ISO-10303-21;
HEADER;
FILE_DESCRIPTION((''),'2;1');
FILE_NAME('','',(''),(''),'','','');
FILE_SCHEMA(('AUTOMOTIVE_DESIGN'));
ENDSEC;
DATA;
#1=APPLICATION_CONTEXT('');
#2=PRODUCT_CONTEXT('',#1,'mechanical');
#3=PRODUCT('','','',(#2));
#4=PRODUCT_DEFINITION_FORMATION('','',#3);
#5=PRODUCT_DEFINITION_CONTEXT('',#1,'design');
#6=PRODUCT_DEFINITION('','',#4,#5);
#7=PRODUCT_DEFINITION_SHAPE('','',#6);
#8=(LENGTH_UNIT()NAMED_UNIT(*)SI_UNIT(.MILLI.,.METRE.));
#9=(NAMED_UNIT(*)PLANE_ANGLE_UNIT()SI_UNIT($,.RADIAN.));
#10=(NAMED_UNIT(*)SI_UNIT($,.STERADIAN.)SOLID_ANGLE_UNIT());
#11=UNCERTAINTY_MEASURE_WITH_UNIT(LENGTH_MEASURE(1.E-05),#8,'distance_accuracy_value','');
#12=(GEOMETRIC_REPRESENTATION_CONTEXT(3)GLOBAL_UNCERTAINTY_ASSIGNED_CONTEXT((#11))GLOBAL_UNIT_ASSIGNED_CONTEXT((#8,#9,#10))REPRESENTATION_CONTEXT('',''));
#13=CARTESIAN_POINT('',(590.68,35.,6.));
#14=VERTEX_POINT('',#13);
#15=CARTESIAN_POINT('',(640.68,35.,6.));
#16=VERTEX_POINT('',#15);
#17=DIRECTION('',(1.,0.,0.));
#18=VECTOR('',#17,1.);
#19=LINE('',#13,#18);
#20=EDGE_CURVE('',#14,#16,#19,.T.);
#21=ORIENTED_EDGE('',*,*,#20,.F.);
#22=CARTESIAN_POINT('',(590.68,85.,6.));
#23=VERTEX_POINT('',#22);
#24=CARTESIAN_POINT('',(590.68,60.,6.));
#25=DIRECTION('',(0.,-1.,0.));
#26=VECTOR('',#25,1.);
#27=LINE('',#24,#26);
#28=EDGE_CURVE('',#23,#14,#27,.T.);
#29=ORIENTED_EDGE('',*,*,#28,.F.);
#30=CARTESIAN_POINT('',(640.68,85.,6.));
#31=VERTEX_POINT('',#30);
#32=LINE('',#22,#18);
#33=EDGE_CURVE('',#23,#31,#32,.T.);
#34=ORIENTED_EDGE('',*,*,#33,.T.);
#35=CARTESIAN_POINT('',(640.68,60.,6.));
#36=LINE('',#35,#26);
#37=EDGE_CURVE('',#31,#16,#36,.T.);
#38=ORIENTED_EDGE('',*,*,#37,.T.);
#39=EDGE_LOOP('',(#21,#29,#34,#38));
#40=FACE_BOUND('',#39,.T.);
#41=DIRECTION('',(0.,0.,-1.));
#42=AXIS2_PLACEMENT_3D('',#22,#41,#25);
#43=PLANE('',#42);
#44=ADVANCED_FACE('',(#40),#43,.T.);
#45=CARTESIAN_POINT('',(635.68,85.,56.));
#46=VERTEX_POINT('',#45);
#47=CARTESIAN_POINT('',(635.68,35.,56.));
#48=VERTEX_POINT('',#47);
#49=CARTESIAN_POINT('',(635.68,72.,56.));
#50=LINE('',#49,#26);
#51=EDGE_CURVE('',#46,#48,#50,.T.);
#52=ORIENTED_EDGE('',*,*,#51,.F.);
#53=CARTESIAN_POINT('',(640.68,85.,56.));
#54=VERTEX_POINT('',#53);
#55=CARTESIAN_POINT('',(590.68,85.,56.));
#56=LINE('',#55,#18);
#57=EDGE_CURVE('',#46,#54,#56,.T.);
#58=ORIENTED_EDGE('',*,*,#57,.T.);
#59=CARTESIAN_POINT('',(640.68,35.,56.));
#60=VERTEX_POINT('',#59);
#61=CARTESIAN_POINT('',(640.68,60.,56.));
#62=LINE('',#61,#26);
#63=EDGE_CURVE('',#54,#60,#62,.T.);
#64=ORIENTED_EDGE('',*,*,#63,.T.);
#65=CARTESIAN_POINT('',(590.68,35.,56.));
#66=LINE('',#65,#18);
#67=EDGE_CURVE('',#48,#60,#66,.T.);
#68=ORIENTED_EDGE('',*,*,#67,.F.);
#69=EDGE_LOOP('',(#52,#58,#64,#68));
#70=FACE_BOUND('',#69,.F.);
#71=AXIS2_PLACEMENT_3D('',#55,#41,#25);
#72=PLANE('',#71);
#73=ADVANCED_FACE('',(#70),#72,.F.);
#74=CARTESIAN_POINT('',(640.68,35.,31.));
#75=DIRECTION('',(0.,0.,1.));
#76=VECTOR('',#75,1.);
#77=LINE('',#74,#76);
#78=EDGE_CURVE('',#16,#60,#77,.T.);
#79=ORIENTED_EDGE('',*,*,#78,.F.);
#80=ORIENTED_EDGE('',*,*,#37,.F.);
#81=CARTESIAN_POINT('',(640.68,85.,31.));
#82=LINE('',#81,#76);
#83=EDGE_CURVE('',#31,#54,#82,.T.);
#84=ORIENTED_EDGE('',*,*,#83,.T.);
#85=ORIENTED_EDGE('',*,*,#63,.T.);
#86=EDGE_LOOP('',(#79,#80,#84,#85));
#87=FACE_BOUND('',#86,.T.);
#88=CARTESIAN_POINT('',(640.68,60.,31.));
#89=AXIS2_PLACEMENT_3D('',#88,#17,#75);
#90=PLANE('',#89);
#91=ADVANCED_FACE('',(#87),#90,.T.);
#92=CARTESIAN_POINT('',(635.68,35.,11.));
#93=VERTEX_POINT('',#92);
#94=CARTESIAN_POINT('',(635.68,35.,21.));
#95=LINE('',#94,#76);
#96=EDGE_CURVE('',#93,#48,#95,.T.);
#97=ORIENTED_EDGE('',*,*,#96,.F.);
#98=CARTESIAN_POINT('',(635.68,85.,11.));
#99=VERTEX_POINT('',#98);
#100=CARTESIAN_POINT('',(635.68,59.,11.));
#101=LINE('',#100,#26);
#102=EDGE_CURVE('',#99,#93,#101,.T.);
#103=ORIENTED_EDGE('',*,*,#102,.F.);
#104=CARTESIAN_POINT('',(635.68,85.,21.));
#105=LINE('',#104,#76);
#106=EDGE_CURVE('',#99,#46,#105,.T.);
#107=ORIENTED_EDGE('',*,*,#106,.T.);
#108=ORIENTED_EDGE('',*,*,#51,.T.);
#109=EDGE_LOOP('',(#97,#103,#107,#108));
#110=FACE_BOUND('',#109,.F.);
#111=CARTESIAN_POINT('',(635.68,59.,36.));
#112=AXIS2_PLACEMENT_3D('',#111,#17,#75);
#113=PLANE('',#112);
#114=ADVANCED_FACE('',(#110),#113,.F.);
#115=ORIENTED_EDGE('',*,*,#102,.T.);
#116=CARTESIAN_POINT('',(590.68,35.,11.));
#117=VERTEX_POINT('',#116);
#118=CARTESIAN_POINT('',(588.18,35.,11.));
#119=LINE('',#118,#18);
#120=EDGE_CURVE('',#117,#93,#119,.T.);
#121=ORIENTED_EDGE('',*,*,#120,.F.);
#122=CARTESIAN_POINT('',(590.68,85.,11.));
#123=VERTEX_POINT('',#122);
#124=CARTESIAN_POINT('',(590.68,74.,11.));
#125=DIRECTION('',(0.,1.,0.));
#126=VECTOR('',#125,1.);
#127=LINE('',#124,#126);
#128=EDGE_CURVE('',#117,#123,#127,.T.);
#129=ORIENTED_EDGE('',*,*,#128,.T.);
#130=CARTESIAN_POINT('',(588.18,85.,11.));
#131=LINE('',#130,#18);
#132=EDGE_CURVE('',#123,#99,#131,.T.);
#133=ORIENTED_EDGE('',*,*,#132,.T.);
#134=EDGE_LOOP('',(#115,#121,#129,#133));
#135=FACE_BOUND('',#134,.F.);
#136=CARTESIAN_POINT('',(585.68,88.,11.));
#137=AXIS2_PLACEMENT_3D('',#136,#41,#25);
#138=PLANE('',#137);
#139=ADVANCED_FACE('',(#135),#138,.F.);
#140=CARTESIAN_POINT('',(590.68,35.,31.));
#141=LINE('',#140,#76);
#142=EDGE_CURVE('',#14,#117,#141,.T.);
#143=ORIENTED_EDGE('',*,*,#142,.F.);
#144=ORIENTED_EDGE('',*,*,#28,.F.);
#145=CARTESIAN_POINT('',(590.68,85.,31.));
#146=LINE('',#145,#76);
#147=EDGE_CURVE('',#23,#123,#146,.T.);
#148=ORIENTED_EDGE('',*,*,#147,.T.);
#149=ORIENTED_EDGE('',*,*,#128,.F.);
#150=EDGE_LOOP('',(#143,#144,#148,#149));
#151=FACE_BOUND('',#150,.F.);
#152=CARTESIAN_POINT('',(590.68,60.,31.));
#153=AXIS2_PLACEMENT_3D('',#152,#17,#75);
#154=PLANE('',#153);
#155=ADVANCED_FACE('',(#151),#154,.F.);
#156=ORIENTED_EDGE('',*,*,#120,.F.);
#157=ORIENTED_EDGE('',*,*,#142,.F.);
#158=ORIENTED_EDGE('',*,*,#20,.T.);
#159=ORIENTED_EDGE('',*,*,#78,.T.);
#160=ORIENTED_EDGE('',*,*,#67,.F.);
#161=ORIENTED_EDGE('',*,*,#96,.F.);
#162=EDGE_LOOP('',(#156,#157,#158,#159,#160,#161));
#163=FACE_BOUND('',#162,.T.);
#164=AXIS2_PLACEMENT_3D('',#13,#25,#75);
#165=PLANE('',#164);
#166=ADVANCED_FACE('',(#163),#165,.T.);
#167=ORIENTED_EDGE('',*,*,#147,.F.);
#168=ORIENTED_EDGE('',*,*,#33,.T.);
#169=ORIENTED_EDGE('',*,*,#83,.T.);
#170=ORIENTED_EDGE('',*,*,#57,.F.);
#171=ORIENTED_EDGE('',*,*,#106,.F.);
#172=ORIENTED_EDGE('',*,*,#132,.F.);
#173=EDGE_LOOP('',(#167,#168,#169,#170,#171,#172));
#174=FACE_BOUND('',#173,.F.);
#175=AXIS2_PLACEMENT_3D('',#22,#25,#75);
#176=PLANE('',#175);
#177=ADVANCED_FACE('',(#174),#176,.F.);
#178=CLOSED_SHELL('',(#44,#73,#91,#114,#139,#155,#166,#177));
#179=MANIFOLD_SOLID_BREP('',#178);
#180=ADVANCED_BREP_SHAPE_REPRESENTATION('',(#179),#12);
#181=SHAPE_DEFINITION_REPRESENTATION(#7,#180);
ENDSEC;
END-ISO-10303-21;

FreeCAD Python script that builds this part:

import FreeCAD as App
import Part
import Sketcher

V = App.Vector

doc = App.newDocument("Part")
body = doc.addObject("PartDesign::Body", "Body")

# Sketch on XY plane
sketch1 = body.newObject("Sketcher::SketchObject", "Sketch")
sketch1.AttachmentSupport = (doc.getObject("XY_Plane"), [""])
sketch1.MapMode = "FlatFace"
sketch1.AttachmentOffset = App.Placement(V(0, 0, -5), App.Rotation())
sketch1.addGeometry([
    Part.LineSegment(V(5, 55, 0), V(5, -3, 0)),
    Part.LineSegment(V(5, -3, 0), V(55, -3, 0)),
    Part.LineSegment(V(55, -3, 0), V(55, 55, 0)),
    Part.LineSegment(V(55, 55, 0), V(5, 55, 0)),
], False)
sketch1.addConstraint([
    Sketcher.Constraint("Coincident", 0, 2, 1, 1),
    Sketcher.Constraint("Coincident", 1, 2, 2, 1),
    Sketcher.Constraint("Coincident", 2, 2, 3, 1),
    Sketcher.Constraint("Coincident", 3, 2, 0, 1),
    Sketcher.Constraint("Vertical", 0),
    Sketcher.Constraint("Horizontal", 1),
    Sketcher.Constraint("Vertical", 2),
    Sketcher.Constraint("Horizontal", 3),
    Sketcher.Constraint("DistanceX", 1, 1, 1, 2, 50.0),
    Sketcher.Constraint("DistanceY", 0, 2, 0, 1, 58.0),
    Sketcher.Constraint("DistanceX", -1, 1, 0, 2, 5.0),
    Sketcher.Constraint("DistanceY", 0, 2, -1, 1, 3.0),
])
pad1 = body.newObject("PartDesign::Pad", "Pad")
pad1.Profile = sketch1
pad1.Length = 50
body2 = doc.addObject("PartDesign::Body", "Body001")

# Sketch on XY plane
sketch2 = body2.newObject("Sketcher::SketchObject", "Sketch001")
sketch2.AttachmentSupport = (doc.getObject("XY_Plane001"), [""])
sketch2.MapMode = "FlatFace"
sketch2.addGeometry([
    Part.LineSegment(V(0, 50, 0), V(0, 0, 0)),
    Part.LineSegment(V(0, 0, 0), V(50, 0, 0)),
    Part.LineSegment(V(50, 0, 0), V(50, 50, 0)),
    Part.LineSegment(V(50, 50, 0), V(0, 50, 0)),
], False)
sketch2.addConstraint([
    Sketcher.Constraint("Coincident", 0, 2, 1, 1),
    Sketcher.Constraint("Coincident", 1, 2, 2, 1),
    Sketcher.Constraint("Coincident", 2, 2, 3, 1),
    Sketcher.Constraint("Coincident", 3, 2, 0, 1),
    Sketcher.Constraint("Vertical", 0),
    Sketcher.Constraint("Horizontal", 1),
    Sketcher.Constraint("Vertical", 2),
    Sketcher.Constraint("Horizontal", 3),
    Sketcher.Constraint("Coincident", 0, 2, -1, 1),
    Sketcher.Constraint("Equal", 3, 0),
    Sketcher.Constraint("DistanceX", 1, 1, 1, 2, 50.0),
])
pad2 = body2.newObject("PartDesign::Pad", "Pad001")
pad2.Profile = sketch2
pad2.Length = 50
doc.recompute()

boolean = body2.newObject("PartDesign::Boolean", "Boolean")
boolean.Type = "Cut"
boolean.addObjects([body])
body3 = doc.addObject("PartDesign::Body", "Body002")
doc.recompute()

body2.Placement = App.Placement(V(0, 0, 0), App.Rotation(V(0, 1, 0), 270))
boolean2 = body3.newObject("PartDesign::Boolean", "Boolean001")
boolean2.Type = "Fuse"
boolean2.addObjects([body2])
body4 = doc.addObject("PartDesign::Body", "Body003")
doc.recompute()

body3.Placement = App.Placement(V(590.68, 85, 6), App.Rotation(V(0, 0, 1), 180))
boolean3 = body4.newObject("PartDesign::Boolean", "Boolean002")
boolean3.Type = "Fuse"
boolean3.addObjects([body3])

doc.recompute()
